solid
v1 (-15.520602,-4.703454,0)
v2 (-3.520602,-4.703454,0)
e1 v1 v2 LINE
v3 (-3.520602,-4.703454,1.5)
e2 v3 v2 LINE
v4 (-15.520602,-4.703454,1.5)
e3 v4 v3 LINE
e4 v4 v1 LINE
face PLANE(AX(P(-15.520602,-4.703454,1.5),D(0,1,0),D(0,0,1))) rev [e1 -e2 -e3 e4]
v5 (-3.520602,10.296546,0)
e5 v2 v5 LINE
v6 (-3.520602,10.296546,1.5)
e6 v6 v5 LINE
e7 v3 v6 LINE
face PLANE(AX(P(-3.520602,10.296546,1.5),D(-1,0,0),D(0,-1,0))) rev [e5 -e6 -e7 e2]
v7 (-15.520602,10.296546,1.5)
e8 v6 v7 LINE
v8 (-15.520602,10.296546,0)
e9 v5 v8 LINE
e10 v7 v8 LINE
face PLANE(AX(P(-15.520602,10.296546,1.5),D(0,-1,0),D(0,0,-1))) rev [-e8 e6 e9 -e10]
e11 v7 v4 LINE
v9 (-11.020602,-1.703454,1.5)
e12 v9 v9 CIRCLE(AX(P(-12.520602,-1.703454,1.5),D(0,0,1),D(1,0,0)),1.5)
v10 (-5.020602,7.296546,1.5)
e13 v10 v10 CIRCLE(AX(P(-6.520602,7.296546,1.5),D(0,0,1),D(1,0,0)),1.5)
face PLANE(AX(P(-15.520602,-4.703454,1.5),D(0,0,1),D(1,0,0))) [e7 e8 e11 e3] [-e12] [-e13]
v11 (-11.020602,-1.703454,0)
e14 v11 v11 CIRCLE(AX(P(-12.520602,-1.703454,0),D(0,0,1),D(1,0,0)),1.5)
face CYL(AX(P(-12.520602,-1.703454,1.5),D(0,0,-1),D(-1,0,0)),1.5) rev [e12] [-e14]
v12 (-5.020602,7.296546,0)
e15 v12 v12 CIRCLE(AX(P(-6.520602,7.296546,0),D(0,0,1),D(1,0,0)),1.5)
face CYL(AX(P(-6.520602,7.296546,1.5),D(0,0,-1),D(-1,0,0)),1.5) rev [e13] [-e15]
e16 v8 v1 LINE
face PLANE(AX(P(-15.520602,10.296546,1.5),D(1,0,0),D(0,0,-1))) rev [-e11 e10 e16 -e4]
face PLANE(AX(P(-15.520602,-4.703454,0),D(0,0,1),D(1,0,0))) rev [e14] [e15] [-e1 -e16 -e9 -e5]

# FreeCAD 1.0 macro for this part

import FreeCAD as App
import Part
import Sketcher


def add_polygon(sketch, points):
    """Adds a closed chain of lines whose ends are joined by coincident constraints."""
    first, n = sketch.GeometryCount, len(points)
    for a, b in zip(points, points[1:] + points[:1]):
        sketch.addGeometry(Part.LineSegment(App.Vector(*a, 0), App.Vector(*b, 0)), False)
    for i in range(n):
        sketch.addConstraint(Sketcher.Constraint("Coincident", first + i, 2, first + (i + 1) % n, 1))

doc = App.newDocument("Part")
body = doc.addObject("PartDesign::Body", "Body")

sketch1 = body.newObject("Sketcher::SketchObject", "Sketch")
sketch1.AttachmentSupport = (doc.getObject("XY_Plane"), [""])
sketch1.MapMode = "FlatFace"
add_polygon(sketch1, [(-15.520602, 10.296546), (-15.520602, -4.703454), (-3.520602, -4.703454), (-3.520602, 10.296546)])
sketch1.addGeometry(Part.Circle(App.Vector(-12.520602, -1.703454, 0), App.Vector(0, 0, 1), 1.5), False)
sketch1.addGeometry(Part.Circle(App.Vector(-6.520602, 7.296546, 0), App.Vector(0, 0, 1), 1.5), False)
sketch1.addConstraint([
    Sketcher.Constraint("Vertical", 0),
    Sketcher.Constraint("Horizontal", 1),
    Sketcher.Constraint("Vertical", 2),
    Sketcher.Constraint("Horizontal", 3),
    Sketcher.Constraint("Equal", 4, 5),
    Sketcher.Constraint("Diameter", 4, 3.0),
    Sketcher.Constraint("DistanceX", 1, 1, 1, 2, 12.0),
    Sketcher.Constraint("DistanceY", 0, 2, 0, 1, 15.0),
    Sketcher.Constraint("DistanceX", 4, 3, 5, 3, 6.0),
    Sketcher.Constraint("DistanceY", 4, 3, 5, 3, 9.0),
    Sketcher.Constraint("DistanceX", 0, 2, 4, 3, 3.0),
    Sketcher.Constraint("DistanceY", 0, 2, 4, 3, 3.0),
    Sketcher.Constraint("DistanceX", 4, 3, -1, 1, 12.520602),
    Sketcher.Constraint("DistanceY", 4, 3, -1, 1, 1.703454),
])
pad1 = body.newObject("PartDesign::Pad", "Pad")
pad1.Profile = sketch1
pad1.Length = 1.5

doc.recompute()
